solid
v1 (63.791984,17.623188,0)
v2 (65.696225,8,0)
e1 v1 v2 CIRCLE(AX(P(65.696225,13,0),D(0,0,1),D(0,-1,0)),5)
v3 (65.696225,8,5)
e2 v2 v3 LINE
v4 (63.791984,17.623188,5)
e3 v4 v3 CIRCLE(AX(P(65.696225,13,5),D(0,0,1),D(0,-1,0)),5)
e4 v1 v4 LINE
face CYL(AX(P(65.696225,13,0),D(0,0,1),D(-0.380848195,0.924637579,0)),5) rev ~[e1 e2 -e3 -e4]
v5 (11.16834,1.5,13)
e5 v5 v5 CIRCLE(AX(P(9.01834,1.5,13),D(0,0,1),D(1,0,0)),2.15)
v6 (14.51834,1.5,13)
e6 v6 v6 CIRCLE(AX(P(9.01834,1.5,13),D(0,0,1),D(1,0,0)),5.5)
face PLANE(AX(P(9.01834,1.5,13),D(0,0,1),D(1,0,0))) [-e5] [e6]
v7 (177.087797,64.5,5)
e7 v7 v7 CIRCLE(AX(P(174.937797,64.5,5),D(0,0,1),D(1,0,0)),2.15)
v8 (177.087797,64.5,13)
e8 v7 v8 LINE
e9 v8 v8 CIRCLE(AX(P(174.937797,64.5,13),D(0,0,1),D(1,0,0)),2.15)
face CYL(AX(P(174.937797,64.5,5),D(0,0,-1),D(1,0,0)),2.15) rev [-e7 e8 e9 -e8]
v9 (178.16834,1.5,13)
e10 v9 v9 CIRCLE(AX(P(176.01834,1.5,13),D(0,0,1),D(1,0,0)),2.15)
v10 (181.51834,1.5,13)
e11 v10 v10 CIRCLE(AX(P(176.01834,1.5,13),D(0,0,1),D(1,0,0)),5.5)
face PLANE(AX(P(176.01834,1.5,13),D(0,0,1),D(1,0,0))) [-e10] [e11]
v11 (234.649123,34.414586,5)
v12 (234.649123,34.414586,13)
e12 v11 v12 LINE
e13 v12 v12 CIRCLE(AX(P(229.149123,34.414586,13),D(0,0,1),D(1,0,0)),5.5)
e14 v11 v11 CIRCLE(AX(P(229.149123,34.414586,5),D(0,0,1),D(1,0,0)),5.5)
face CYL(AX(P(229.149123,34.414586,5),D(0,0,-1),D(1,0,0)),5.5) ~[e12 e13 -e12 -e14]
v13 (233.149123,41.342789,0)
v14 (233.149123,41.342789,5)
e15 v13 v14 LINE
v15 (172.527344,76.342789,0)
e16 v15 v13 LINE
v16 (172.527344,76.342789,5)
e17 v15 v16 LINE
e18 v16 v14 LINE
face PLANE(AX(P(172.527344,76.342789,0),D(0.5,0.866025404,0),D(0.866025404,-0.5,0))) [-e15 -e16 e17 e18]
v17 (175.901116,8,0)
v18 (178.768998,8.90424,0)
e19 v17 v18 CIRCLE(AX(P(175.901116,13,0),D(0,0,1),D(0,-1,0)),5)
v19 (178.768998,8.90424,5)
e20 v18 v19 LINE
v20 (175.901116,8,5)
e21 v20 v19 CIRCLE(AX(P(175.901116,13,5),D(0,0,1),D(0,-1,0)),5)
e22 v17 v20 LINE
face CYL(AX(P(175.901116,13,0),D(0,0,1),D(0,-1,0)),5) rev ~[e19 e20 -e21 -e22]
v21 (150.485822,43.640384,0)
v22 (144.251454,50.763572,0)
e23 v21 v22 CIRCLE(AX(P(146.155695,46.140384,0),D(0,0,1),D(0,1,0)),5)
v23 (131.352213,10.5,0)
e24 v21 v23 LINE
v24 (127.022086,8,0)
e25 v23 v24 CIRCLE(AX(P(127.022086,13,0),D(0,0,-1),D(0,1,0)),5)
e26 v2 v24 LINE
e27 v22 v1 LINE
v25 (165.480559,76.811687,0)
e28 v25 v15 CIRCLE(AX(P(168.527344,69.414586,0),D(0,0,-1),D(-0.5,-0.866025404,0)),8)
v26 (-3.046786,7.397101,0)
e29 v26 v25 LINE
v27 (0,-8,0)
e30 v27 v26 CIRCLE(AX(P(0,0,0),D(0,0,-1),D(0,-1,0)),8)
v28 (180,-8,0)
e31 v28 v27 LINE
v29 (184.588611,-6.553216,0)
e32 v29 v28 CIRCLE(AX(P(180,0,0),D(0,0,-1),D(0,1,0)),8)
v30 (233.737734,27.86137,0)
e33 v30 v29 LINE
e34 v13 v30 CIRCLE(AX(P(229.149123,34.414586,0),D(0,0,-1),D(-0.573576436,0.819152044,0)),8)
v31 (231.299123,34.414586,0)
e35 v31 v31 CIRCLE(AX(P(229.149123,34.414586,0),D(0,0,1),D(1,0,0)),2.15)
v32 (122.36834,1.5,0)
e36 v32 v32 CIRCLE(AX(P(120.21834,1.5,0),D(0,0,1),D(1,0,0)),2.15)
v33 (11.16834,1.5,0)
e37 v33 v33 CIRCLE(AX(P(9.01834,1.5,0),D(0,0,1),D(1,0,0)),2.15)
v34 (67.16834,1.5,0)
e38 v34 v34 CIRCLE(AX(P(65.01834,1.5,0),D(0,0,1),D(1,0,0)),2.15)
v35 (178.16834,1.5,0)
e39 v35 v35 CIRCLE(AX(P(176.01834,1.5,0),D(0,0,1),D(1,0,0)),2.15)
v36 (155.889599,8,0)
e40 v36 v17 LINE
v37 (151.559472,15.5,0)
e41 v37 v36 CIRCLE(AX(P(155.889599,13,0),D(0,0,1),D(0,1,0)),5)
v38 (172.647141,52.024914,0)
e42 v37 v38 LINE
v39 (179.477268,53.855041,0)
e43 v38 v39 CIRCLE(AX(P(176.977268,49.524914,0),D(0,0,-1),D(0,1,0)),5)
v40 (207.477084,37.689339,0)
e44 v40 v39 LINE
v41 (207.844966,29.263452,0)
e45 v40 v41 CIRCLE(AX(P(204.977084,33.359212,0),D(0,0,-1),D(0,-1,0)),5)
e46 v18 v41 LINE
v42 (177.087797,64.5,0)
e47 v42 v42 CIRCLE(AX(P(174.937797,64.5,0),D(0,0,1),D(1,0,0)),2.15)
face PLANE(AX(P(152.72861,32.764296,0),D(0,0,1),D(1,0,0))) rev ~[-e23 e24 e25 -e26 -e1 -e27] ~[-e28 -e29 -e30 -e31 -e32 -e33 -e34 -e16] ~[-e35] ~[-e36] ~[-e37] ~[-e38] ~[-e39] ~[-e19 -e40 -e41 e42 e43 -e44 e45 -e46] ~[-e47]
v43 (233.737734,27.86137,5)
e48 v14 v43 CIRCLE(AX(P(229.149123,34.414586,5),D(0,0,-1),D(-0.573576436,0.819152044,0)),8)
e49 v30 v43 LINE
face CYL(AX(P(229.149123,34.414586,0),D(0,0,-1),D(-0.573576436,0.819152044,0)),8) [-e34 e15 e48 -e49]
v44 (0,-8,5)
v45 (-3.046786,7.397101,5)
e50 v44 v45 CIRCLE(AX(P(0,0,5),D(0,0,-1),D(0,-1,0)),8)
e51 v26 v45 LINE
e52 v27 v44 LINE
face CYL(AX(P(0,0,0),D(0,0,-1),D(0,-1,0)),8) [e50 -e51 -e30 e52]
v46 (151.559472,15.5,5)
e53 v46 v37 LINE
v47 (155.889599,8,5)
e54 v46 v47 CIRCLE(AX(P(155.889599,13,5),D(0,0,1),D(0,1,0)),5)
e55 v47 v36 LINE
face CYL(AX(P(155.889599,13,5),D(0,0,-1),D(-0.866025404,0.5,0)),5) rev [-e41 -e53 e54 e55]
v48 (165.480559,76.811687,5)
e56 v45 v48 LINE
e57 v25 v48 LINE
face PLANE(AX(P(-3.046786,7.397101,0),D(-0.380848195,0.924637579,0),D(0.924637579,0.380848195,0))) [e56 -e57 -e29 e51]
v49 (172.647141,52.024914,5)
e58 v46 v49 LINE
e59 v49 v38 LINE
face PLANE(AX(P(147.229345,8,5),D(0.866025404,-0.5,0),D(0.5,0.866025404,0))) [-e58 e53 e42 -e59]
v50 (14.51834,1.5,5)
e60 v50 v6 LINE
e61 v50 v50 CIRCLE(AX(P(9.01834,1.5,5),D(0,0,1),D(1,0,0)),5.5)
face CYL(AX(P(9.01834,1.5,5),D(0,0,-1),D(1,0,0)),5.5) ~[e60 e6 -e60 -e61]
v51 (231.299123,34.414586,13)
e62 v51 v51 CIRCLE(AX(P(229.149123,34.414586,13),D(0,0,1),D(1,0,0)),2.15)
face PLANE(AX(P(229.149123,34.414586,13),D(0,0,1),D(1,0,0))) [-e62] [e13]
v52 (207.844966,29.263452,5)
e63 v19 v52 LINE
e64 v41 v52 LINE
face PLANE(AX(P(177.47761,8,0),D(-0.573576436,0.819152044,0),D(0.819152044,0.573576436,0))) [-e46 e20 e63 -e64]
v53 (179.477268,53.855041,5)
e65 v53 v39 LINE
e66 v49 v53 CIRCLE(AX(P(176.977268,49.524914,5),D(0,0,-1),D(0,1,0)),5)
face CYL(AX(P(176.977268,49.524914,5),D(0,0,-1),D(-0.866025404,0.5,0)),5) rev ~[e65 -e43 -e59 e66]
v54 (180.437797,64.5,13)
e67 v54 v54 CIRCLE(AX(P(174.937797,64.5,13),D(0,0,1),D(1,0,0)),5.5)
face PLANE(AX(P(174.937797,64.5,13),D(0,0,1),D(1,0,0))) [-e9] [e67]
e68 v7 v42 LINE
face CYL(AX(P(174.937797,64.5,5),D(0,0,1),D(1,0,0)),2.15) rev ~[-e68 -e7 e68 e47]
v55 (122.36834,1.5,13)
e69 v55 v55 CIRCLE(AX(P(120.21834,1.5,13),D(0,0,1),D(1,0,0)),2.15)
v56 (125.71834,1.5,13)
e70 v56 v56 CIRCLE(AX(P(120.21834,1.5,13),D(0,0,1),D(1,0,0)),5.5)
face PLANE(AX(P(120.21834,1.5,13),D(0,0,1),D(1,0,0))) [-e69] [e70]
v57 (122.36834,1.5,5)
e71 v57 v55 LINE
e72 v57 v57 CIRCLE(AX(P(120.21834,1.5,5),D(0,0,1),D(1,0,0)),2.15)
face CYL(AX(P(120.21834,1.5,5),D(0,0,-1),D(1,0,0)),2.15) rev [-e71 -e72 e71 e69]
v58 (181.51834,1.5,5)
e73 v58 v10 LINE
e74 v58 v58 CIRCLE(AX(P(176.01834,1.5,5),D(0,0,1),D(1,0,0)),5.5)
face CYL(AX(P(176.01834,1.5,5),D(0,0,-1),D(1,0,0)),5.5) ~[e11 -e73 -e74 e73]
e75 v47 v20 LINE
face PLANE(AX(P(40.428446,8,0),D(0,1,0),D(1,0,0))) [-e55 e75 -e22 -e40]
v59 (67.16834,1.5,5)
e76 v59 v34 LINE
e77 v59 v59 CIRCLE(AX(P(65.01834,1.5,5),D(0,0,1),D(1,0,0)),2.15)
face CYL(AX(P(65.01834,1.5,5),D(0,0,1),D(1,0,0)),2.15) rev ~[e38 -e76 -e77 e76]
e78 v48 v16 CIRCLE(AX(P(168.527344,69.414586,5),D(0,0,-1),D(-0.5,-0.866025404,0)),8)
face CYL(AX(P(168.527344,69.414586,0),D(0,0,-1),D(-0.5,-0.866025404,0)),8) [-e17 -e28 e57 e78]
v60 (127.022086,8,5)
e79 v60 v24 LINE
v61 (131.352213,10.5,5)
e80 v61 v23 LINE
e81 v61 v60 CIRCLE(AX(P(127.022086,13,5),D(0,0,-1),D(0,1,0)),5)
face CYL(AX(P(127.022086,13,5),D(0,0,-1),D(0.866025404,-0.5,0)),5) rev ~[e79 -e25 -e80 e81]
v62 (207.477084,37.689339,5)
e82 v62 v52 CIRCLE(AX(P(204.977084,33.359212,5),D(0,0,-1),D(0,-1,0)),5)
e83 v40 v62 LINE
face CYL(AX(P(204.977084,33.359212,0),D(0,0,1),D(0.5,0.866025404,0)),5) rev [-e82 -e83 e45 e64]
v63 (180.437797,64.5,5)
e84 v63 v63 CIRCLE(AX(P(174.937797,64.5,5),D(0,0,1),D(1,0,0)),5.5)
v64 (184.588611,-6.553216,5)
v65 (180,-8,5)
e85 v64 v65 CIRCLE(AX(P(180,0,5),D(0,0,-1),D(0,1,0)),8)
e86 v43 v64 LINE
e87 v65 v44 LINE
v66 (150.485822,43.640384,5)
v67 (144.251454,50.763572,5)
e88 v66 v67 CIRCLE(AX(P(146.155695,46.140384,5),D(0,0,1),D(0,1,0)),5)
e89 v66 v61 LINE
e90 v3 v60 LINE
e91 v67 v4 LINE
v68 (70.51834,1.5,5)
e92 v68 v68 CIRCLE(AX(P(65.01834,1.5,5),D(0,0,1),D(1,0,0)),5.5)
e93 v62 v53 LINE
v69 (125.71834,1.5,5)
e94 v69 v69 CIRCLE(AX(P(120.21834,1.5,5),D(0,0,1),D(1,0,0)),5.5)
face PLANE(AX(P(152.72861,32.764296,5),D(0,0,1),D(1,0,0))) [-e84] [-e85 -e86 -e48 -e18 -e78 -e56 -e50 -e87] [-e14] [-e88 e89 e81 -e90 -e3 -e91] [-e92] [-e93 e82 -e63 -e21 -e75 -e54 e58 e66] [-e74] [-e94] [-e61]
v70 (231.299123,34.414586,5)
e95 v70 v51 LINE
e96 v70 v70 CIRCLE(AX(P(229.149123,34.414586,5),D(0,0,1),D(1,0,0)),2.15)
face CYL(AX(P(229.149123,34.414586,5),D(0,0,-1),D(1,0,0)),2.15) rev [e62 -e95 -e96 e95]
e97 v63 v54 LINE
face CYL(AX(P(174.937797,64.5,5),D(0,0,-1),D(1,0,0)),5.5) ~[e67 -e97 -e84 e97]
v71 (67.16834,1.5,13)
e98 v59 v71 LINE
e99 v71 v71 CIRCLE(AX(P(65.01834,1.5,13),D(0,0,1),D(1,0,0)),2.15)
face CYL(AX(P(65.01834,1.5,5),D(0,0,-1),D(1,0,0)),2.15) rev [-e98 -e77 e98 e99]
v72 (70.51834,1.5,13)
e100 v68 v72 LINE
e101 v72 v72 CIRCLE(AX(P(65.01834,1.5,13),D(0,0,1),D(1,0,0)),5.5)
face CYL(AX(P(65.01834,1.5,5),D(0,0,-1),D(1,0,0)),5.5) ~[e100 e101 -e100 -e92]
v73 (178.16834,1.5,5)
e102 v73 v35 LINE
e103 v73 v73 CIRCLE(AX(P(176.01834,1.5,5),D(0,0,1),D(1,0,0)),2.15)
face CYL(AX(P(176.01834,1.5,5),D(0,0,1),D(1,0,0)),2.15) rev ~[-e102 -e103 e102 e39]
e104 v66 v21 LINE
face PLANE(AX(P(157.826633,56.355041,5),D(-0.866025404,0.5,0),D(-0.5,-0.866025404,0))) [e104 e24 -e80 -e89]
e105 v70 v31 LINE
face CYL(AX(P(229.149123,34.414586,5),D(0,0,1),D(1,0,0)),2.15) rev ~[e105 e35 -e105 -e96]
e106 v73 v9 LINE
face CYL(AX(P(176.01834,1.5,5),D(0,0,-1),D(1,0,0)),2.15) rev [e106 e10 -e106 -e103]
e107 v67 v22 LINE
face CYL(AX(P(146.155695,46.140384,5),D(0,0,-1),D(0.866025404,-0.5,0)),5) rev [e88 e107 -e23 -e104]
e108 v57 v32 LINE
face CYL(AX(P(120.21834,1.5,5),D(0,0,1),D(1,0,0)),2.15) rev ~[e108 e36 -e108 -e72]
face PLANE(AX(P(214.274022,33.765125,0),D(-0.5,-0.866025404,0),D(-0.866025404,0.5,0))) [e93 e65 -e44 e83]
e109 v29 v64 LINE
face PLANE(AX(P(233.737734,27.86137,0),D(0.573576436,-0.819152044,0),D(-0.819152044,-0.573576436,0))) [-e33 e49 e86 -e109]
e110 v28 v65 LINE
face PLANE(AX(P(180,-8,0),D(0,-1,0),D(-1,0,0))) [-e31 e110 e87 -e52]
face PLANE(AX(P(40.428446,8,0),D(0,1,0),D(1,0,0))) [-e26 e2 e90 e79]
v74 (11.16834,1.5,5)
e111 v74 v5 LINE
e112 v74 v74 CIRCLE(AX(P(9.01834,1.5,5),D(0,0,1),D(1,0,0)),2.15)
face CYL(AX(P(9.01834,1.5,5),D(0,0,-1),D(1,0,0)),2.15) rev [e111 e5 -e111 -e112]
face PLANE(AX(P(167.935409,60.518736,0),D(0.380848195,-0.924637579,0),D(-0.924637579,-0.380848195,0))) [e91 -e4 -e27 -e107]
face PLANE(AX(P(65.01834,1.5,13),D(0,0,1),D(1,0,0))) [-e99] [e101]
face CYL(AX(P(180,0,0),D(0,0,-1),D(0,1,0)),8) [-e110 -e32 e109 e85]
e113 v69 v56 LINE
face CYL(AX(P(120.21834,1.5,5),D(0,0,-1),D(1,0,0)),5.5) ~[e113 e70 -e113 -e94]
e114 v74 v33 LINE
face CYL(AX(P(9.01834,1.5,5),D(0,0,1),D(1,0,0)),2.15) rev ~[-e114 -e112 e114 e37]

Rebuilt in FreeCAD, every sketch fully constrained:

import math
import FreeCAD as App
import Part
import Sketcher

V = App.Vector
Q = App.Units.Quantity


def edges_at(feature, points):
    """Names of the edges that pass closest to the given points."""
    edges = feature.Shape.Edges
    near = lambda p: min(range(len(edges)), key=lambda i: edges[i].distToShape(Part.Vertex(*p))[0])
    return sorted({f"Edge{near(p) + 1}" for p in points})

doc = App.newDocument("Part")
body = doc.addObject("PartDesign::Body", "Body")

sketch1 = body.newObject("Sketcher::SketchObject", "Sketch")
sketch1.AttachmentSupport = (doc.getObject("XY_Plane"), [""])
sketch1.MapMode = "FlatFace"
sketch1.addGeometry([
    Part.ArcOfCircle(Part.Circle(V(180, 0, 0), V(0, 0, 1), 8), math.radians(-90), math.radians(-55)),
    Part.LineSegment(V(184.6, -6.6, 0), V(233.7, 27.9, 0)),
    Part.ArcOfCircle(Part.Circle(V(229.1, 34.4, 0), V(0, 0, 1), 8), math.radians(-55), math.radians(60)),
    Part.LineSegment(V(233.1, 41.3, 0), V(172.5, 76.3, 0)),
    Part.ArcOfCircle(Part.Circle(V(168.5, 69.4, 0), V(0, 0, 1), 8), math.radians(60), math.radians(112)),
    Part.LineSegment(V(165.5, 76.8, 0), V(-3, 7.4, 0)),
    Part.ArcOfCircle(Part.Circle(V(0, 0, 0), V(0, 0, 1), 8), math.radians(112), math.radians(270)),
    Part.LineSegment(V(0, -8, 0), V(180, -8, 0)),
    Part.LineSegment(V(167.9, 60.5, 0), V(214.3, 33.8, 0)),
    Part.LineSegment(V(214.3, 33.8, 0), V(177.5, 8, 0)),
    Part.LineSegment(V(177.5, 8, 0), V(40.4, 8, 0)),
    Part.LineSegment(V(40.4, 8, 0), V(167.9, 60.5, 0)),
], False)
sketch1.addConstraint([
    Sketcher.Constraint("Tangent", 0, 2, 1, 1),
    Sketcher.Constraint("Tangent", 1, 2, 2, 1),
    Sketcher.Constraint("Tangent", 2, 2, 3, 1),
    Sketcher.Constraint("Tangent", 3, 2, 4, 1),
    Sketcher.Constraint("Tangent", 4, 2, 5, 1),
    Sketcher.Constraint("Tangent", 5, 2, 6, 1),
    Sketcher.Constraint("Tangent", 6, 2, 7, 1),
    Sketcher.Constraint("Tangent", 7, 2, 0, 1),
    Sketcher.Constraint("Coincident", 8, 2, 9, 1),
    Sketcher.Constraint("Coincident", 9, 2, 10, 1),
    Sketcher.Constraint("Coincident", 10, 2, 11, 1),
    Sketcher.Constraint("Coincident", 11, 2, 8, 1),
    Sketcher.Constraint("Horizontal", 7),
    Sketcher.Constraint("Horizontal", 10),
    Sketcher.Constraint("Coincident", 6, 3, -1, 1),
    Sketcher.Constraint("Equal", 0, 2),
    Sketcher.Constraint("Equal", 2, 4),
    Sketcher.Constraint("Equal", 4, 6),
    Sketcher.Constraint("Parallel", 3, 8),
    Sketcher.Constraint("Parallel", 1, 9),
    Sketcher.Constraint("Parallel", 5, 11),
    Sketcher.Constraint("Radius", 0, 8.0),
    Sketcher.Constraint("DistanceX", 7, 1, 7, 2, 180.0),
    Sketcher.Constraint("Angle", 1, Q("35 deg")),
    Sketcher.Constraint("Angle", 3, Q("150 deg")),
    Sketcher.Constraint("Distance", 1, 60.0),
    Sketcher.Constraint("Distance", 3, 70.0),
    Sketcher.Constraint("DistanceY", -1, 1, 9, 2, 8.0),
    Sketcher.Constraint("DistanceX", 9, 2, 0, 2, 7.111002),
    Sketcher.Constraint("DistanceX", 8, 2, 2, 3, 14.875101),
    Sketcher.Constraint("DistanceX", 11, 2, 9, 2, 9.542201),
])
pad1 = body.newObject("PartDesign::Pad", "Pad")
pad1.Profile = sketch1
pad1.Length = 5

sketch2 = body.newObject("Sketcher::SketchObject", "Sketch001")
sketch2.AttachmentSupport = (doc.getObject("XY_Plane"), [""])
sketch2.MapMode = "FlatFace"
sketch2.AttachmentOffset = App.Placement(V(0, 0, 5), App.Rotation())
sketch2.addGeometry([
    Part.LineSegment(V(147, 8, 0), V(175, 56, 0)),
    Part.LineSegment(V(175, 56, 0), V(168, 61, 0)),
    Part.LineSegment(V(168, 61, 0), V(158, 56, 0)),
    Part.LineSegment(V(158, 56, 0), V(130, 8, 0)),
    Part.LineSegment(V(130, 8, 0), V(147, 8, 0)),
], False)
sketch2.addConstraint([
    Sketcher.Constraint("Coincident", 0, 2, 1, 1),
    Sketcher.Constraint("Coincident", 1, 2, 2, 1),
    Sketcher.Constraint("Coincident", 2, 2, 3, 1),
    Sketcher.Constraint("Coincident", 3, 2, 4, 1),
    Sketcher.Constraint("Coincident", 4, 2, 0, 1),
    Sketcher.Constraint("Horizontal", 4),
    Sketcher.Constraint("Perpendicular", 0, 1),
    Sketcher.Constraint("Perpendicular", 1, 3),
    Sketcher.Constraint("Horizontal", 0, 2, 2, 2),
    Sketcher.Constraint("Angle", 0, Q("60 deg")),
    Sketcher.Constraint("DistanceY", -1, 1, 3, 2, 8.0),
    Sketcher.Constraint("DistanceX", 4, 1, 4, 2, 17.320508),
    Sketcher.Constraint("Distance", 0, 55.835591),
    Sketcher.Constraint("Distance", 1, 8.327391),
    Sketcher.Constraint("DistanceX", -1, 1, 0, 2, 175.147141),
])
pad2 = body.newObject("PartDesign::Pad", "Pad001")
pad2.Profile = sketch2
pad2.Length = 5
pad2.Reversed = True
doc.recompute()

fillet = body.newObject("PartDesign::Fillet", "Fillet")
fillet.Base = (pad2, edges_at(pad2, [
    (40.428, 8, 2.5),
    (177.478, 8, 2.5),
    (214.274, 33.765, 2.5),
    (157.827, 56.355, 2.5),
    (129.909, 8, 2.5),
    (147.229, 8, 2.5),
    (175.147, 56.355, 2.5),
]))
fillet.Radius = 5

sketch3 = body.newObject("Sketcher::SketchObject", "Sketch002")
sketch3.AttachmentSupport = (doc.getObject("XY_Plane"), [""])
sketch3.MapMode = "FlatFace"
sketch3.AttachmentOffset = App.Placement(V(0, 0, 5), App.Rotation())
sketch3.addGeometry([
    Part.Circle(V(174.9, 64.5, 0), V(0, 0, 1), 5.5),
    Part.Circle(V(174.9, 64.5, 0), V(0, 0, 1), 2.1),
    Part.Circle(V(229.1, 34.4, 0), V(0, 0, 1), 5.5),
    Part.Circle(V(229.1, 34.4, 0), V(0, 0, 1), 2.1),
    Part.Circle(V(176, 1.5, 0), V(0, 0, 1), 5.5),
    Part.Circle(V(176, 1.5, 0), V(0, 0, 1), 2.1),
    Part.Circle(V(120.2, 1.5, 0), V(0, 0, 1), 5.5),
    Part.Circle(V(120.2, 1.5, 0), V(0, 0, 1), 2.1),
    Part.Circle(V(65, 1.5, 0), V(0, 0, 1), 5.5),
    Part.Circle(V(65, 1.5, 0), V(0, 0, 1), 2.1),
    Part.Circle(V(9, 1.5, 0), V(0, 0, 1), 5.5),
    Part.Circle(V(9, 1.5, 0), V(0, 0, 1), 2.1),
], False)
sketch3.addConstraint([
    Sketcher.Constraint("Coincident", 1, 3, 0, 3),
    Sketcher.Constraint("Coincident", 3, 3, 2, 3),
    Sketcher.Constraint("Coincident", 5, 3, 4, 3),
    Sketcher.Constraint("Coincident", 7, 3, 6, 3),
    Sketcher.Constraint("Coincident", 9, 3, 8, 3),
    Sketcher.Constraint("Coincident", 11, 3, 10, 3),
    Sketcher.Constraint("Equal", 0, 2),
    Sketcher.Constraint("Equal", 1, 3),
    Sketcher.Constraint("Equal", 2, 4),
    Sketcher.Constraint("Equal", 3, 5),
    Sketcher.Constraint("Equal", 4, 6),
    Sketcher.Constraint("Equal", 5, 7),
    Sketcher.Constraint("Equal", 6, 8),
    Sketcher.Constraint("Equal", 7, 9),
    Sketcher.Constraint("Equal", 8, 10),
    Sketcher.Constraint("Equal", 9, 11),
    Sketcher.Constraint("Horizontal", 5, 3, 6, 3),
    Sketcher.Constraint("Horizontal", 7, 3, 8, 3),
    Sketcher.Constraint("Horizontal", 9, 3, 10, 3),
    Sketcher.Constraint("Diameter", 0, 11.0),
    Sketcher.Constraint("Diameter", 1, 4.3),
    Sketcher.Constraint("DistanceY", 4, 3, 0, 3, 63.0),
    Sketcher.Constraint("DistanceX", 8, 3, 4, 3, 111.0),
    Sketcher.Constraint("DistanceX", 10, 3, 8, 3, 56.0),
    Sketcher.Constraint("DistanceY", -1, 1, 0, 3, 64.5),
    Sketcher.Constraint("DistanceX", 6, 3, 4, 3, 55.8),
    Sketcher.Constraint("DistanceX", -1, 1, 4, 3, 176.01834),
    Sketcher.Constraint("DistanceX", -1, 1, 0, 3, 174.937797),
    Sketcher.Constraint("DistanceX", -1, 1, 2, 3, 229.149123),
    Sketcher.Constraint("DistanceY", -1, 1, 2, 3, 34.414586),
])
pad3 = body.newObject("PartDesign::Pad", "Pad002")
pad3.Profile = sketch3
pad3.Length = 8

sketch4 = body.newObject("Sketcher::SketchObject", "Sketch003")
sketch4.AttachmentSupport = (doc.getObject("XY_Plane"), [""])
sketch4.MapMode = "FlatFace"
sketch4.AttachmentOffset = App.Placement(V(0, 0, 5), App.Rotation())
sketch4.addGeometry([
    Part.Circle(V(9, 1.5, 0), V(0, 0, 1), 2.1),
    Part.Circle(V(65, 1.5, 0), V(0, 0, 1), 2.1),
    Part.Circle(V(120.2, 1.5, 0), V(0, 0, 1), 2.1),
    Part.Circle(V(176, 1.5, 0), V(0, 0, 1), 2.1),
    Part.Circle(V(229.1, 34.4, 0), V(0, 0, 1), 2.1),
    Part.Circle(V(174.9, 64.5, 0), V(0, 0, 1), 2.1),
], False)
sketch4.addConstraint([
    Sketcher.Constraint("Equal", 0, 1),
    Sketcher.Constraint("Equal", 1, 2),
    Sketcher.Constraint("Equal", 2, 3),
    Sketcher.Constraint("Equal", 3, 4),
    Sketcher.Constraint("Equal", 4, 5),
    Sketcher.Constraint("Horizontal", 0, 3, 1, 3),
    Sketcher.Constraint("Horizontal", 1, 3, 2, 3),
    Sketcher.Constraint("Horizontal", 2, 3, 3, 3),
    Sketcher.Constraint("Diameter", 0, 4.3),
    Sketcher.Constraint("DistanceX", 0, 3, 1, 3, 56.0),
    Sketcher.Constraint("DistanceX", 1, 3, 3, 3, 111.0),
    Sketcher.Constraint("DistanceY", 3, 3, 5, 3, 63.0),
    Sketcher.Constraint("DistanceY", -1, 1, 0, 3, 1.5),
    Sketcher.Constraint("DistanceX", 1, 3, 2, 3, 55.2),
    Sketcher.Constraint("DistanceX", -1, 1, 0, 3, 9.01834),
    Sketcher.Constraint("DistanceX", -1, 1, 4, 3, 229.149123),
    Sketcher.Constraint("DistanceY", -1, 1, 4, 3, 34.414586),
    Sketcher.Constraint("DistanceX", -1, 1, 5, 3, 174.937797),
])
pocket1 = body.newObject("PartDesign::Pocket", "Pocket")
pocket1.Profile = sketch4
pocket1.Type = "ThroughAll"

doc.recompute()
